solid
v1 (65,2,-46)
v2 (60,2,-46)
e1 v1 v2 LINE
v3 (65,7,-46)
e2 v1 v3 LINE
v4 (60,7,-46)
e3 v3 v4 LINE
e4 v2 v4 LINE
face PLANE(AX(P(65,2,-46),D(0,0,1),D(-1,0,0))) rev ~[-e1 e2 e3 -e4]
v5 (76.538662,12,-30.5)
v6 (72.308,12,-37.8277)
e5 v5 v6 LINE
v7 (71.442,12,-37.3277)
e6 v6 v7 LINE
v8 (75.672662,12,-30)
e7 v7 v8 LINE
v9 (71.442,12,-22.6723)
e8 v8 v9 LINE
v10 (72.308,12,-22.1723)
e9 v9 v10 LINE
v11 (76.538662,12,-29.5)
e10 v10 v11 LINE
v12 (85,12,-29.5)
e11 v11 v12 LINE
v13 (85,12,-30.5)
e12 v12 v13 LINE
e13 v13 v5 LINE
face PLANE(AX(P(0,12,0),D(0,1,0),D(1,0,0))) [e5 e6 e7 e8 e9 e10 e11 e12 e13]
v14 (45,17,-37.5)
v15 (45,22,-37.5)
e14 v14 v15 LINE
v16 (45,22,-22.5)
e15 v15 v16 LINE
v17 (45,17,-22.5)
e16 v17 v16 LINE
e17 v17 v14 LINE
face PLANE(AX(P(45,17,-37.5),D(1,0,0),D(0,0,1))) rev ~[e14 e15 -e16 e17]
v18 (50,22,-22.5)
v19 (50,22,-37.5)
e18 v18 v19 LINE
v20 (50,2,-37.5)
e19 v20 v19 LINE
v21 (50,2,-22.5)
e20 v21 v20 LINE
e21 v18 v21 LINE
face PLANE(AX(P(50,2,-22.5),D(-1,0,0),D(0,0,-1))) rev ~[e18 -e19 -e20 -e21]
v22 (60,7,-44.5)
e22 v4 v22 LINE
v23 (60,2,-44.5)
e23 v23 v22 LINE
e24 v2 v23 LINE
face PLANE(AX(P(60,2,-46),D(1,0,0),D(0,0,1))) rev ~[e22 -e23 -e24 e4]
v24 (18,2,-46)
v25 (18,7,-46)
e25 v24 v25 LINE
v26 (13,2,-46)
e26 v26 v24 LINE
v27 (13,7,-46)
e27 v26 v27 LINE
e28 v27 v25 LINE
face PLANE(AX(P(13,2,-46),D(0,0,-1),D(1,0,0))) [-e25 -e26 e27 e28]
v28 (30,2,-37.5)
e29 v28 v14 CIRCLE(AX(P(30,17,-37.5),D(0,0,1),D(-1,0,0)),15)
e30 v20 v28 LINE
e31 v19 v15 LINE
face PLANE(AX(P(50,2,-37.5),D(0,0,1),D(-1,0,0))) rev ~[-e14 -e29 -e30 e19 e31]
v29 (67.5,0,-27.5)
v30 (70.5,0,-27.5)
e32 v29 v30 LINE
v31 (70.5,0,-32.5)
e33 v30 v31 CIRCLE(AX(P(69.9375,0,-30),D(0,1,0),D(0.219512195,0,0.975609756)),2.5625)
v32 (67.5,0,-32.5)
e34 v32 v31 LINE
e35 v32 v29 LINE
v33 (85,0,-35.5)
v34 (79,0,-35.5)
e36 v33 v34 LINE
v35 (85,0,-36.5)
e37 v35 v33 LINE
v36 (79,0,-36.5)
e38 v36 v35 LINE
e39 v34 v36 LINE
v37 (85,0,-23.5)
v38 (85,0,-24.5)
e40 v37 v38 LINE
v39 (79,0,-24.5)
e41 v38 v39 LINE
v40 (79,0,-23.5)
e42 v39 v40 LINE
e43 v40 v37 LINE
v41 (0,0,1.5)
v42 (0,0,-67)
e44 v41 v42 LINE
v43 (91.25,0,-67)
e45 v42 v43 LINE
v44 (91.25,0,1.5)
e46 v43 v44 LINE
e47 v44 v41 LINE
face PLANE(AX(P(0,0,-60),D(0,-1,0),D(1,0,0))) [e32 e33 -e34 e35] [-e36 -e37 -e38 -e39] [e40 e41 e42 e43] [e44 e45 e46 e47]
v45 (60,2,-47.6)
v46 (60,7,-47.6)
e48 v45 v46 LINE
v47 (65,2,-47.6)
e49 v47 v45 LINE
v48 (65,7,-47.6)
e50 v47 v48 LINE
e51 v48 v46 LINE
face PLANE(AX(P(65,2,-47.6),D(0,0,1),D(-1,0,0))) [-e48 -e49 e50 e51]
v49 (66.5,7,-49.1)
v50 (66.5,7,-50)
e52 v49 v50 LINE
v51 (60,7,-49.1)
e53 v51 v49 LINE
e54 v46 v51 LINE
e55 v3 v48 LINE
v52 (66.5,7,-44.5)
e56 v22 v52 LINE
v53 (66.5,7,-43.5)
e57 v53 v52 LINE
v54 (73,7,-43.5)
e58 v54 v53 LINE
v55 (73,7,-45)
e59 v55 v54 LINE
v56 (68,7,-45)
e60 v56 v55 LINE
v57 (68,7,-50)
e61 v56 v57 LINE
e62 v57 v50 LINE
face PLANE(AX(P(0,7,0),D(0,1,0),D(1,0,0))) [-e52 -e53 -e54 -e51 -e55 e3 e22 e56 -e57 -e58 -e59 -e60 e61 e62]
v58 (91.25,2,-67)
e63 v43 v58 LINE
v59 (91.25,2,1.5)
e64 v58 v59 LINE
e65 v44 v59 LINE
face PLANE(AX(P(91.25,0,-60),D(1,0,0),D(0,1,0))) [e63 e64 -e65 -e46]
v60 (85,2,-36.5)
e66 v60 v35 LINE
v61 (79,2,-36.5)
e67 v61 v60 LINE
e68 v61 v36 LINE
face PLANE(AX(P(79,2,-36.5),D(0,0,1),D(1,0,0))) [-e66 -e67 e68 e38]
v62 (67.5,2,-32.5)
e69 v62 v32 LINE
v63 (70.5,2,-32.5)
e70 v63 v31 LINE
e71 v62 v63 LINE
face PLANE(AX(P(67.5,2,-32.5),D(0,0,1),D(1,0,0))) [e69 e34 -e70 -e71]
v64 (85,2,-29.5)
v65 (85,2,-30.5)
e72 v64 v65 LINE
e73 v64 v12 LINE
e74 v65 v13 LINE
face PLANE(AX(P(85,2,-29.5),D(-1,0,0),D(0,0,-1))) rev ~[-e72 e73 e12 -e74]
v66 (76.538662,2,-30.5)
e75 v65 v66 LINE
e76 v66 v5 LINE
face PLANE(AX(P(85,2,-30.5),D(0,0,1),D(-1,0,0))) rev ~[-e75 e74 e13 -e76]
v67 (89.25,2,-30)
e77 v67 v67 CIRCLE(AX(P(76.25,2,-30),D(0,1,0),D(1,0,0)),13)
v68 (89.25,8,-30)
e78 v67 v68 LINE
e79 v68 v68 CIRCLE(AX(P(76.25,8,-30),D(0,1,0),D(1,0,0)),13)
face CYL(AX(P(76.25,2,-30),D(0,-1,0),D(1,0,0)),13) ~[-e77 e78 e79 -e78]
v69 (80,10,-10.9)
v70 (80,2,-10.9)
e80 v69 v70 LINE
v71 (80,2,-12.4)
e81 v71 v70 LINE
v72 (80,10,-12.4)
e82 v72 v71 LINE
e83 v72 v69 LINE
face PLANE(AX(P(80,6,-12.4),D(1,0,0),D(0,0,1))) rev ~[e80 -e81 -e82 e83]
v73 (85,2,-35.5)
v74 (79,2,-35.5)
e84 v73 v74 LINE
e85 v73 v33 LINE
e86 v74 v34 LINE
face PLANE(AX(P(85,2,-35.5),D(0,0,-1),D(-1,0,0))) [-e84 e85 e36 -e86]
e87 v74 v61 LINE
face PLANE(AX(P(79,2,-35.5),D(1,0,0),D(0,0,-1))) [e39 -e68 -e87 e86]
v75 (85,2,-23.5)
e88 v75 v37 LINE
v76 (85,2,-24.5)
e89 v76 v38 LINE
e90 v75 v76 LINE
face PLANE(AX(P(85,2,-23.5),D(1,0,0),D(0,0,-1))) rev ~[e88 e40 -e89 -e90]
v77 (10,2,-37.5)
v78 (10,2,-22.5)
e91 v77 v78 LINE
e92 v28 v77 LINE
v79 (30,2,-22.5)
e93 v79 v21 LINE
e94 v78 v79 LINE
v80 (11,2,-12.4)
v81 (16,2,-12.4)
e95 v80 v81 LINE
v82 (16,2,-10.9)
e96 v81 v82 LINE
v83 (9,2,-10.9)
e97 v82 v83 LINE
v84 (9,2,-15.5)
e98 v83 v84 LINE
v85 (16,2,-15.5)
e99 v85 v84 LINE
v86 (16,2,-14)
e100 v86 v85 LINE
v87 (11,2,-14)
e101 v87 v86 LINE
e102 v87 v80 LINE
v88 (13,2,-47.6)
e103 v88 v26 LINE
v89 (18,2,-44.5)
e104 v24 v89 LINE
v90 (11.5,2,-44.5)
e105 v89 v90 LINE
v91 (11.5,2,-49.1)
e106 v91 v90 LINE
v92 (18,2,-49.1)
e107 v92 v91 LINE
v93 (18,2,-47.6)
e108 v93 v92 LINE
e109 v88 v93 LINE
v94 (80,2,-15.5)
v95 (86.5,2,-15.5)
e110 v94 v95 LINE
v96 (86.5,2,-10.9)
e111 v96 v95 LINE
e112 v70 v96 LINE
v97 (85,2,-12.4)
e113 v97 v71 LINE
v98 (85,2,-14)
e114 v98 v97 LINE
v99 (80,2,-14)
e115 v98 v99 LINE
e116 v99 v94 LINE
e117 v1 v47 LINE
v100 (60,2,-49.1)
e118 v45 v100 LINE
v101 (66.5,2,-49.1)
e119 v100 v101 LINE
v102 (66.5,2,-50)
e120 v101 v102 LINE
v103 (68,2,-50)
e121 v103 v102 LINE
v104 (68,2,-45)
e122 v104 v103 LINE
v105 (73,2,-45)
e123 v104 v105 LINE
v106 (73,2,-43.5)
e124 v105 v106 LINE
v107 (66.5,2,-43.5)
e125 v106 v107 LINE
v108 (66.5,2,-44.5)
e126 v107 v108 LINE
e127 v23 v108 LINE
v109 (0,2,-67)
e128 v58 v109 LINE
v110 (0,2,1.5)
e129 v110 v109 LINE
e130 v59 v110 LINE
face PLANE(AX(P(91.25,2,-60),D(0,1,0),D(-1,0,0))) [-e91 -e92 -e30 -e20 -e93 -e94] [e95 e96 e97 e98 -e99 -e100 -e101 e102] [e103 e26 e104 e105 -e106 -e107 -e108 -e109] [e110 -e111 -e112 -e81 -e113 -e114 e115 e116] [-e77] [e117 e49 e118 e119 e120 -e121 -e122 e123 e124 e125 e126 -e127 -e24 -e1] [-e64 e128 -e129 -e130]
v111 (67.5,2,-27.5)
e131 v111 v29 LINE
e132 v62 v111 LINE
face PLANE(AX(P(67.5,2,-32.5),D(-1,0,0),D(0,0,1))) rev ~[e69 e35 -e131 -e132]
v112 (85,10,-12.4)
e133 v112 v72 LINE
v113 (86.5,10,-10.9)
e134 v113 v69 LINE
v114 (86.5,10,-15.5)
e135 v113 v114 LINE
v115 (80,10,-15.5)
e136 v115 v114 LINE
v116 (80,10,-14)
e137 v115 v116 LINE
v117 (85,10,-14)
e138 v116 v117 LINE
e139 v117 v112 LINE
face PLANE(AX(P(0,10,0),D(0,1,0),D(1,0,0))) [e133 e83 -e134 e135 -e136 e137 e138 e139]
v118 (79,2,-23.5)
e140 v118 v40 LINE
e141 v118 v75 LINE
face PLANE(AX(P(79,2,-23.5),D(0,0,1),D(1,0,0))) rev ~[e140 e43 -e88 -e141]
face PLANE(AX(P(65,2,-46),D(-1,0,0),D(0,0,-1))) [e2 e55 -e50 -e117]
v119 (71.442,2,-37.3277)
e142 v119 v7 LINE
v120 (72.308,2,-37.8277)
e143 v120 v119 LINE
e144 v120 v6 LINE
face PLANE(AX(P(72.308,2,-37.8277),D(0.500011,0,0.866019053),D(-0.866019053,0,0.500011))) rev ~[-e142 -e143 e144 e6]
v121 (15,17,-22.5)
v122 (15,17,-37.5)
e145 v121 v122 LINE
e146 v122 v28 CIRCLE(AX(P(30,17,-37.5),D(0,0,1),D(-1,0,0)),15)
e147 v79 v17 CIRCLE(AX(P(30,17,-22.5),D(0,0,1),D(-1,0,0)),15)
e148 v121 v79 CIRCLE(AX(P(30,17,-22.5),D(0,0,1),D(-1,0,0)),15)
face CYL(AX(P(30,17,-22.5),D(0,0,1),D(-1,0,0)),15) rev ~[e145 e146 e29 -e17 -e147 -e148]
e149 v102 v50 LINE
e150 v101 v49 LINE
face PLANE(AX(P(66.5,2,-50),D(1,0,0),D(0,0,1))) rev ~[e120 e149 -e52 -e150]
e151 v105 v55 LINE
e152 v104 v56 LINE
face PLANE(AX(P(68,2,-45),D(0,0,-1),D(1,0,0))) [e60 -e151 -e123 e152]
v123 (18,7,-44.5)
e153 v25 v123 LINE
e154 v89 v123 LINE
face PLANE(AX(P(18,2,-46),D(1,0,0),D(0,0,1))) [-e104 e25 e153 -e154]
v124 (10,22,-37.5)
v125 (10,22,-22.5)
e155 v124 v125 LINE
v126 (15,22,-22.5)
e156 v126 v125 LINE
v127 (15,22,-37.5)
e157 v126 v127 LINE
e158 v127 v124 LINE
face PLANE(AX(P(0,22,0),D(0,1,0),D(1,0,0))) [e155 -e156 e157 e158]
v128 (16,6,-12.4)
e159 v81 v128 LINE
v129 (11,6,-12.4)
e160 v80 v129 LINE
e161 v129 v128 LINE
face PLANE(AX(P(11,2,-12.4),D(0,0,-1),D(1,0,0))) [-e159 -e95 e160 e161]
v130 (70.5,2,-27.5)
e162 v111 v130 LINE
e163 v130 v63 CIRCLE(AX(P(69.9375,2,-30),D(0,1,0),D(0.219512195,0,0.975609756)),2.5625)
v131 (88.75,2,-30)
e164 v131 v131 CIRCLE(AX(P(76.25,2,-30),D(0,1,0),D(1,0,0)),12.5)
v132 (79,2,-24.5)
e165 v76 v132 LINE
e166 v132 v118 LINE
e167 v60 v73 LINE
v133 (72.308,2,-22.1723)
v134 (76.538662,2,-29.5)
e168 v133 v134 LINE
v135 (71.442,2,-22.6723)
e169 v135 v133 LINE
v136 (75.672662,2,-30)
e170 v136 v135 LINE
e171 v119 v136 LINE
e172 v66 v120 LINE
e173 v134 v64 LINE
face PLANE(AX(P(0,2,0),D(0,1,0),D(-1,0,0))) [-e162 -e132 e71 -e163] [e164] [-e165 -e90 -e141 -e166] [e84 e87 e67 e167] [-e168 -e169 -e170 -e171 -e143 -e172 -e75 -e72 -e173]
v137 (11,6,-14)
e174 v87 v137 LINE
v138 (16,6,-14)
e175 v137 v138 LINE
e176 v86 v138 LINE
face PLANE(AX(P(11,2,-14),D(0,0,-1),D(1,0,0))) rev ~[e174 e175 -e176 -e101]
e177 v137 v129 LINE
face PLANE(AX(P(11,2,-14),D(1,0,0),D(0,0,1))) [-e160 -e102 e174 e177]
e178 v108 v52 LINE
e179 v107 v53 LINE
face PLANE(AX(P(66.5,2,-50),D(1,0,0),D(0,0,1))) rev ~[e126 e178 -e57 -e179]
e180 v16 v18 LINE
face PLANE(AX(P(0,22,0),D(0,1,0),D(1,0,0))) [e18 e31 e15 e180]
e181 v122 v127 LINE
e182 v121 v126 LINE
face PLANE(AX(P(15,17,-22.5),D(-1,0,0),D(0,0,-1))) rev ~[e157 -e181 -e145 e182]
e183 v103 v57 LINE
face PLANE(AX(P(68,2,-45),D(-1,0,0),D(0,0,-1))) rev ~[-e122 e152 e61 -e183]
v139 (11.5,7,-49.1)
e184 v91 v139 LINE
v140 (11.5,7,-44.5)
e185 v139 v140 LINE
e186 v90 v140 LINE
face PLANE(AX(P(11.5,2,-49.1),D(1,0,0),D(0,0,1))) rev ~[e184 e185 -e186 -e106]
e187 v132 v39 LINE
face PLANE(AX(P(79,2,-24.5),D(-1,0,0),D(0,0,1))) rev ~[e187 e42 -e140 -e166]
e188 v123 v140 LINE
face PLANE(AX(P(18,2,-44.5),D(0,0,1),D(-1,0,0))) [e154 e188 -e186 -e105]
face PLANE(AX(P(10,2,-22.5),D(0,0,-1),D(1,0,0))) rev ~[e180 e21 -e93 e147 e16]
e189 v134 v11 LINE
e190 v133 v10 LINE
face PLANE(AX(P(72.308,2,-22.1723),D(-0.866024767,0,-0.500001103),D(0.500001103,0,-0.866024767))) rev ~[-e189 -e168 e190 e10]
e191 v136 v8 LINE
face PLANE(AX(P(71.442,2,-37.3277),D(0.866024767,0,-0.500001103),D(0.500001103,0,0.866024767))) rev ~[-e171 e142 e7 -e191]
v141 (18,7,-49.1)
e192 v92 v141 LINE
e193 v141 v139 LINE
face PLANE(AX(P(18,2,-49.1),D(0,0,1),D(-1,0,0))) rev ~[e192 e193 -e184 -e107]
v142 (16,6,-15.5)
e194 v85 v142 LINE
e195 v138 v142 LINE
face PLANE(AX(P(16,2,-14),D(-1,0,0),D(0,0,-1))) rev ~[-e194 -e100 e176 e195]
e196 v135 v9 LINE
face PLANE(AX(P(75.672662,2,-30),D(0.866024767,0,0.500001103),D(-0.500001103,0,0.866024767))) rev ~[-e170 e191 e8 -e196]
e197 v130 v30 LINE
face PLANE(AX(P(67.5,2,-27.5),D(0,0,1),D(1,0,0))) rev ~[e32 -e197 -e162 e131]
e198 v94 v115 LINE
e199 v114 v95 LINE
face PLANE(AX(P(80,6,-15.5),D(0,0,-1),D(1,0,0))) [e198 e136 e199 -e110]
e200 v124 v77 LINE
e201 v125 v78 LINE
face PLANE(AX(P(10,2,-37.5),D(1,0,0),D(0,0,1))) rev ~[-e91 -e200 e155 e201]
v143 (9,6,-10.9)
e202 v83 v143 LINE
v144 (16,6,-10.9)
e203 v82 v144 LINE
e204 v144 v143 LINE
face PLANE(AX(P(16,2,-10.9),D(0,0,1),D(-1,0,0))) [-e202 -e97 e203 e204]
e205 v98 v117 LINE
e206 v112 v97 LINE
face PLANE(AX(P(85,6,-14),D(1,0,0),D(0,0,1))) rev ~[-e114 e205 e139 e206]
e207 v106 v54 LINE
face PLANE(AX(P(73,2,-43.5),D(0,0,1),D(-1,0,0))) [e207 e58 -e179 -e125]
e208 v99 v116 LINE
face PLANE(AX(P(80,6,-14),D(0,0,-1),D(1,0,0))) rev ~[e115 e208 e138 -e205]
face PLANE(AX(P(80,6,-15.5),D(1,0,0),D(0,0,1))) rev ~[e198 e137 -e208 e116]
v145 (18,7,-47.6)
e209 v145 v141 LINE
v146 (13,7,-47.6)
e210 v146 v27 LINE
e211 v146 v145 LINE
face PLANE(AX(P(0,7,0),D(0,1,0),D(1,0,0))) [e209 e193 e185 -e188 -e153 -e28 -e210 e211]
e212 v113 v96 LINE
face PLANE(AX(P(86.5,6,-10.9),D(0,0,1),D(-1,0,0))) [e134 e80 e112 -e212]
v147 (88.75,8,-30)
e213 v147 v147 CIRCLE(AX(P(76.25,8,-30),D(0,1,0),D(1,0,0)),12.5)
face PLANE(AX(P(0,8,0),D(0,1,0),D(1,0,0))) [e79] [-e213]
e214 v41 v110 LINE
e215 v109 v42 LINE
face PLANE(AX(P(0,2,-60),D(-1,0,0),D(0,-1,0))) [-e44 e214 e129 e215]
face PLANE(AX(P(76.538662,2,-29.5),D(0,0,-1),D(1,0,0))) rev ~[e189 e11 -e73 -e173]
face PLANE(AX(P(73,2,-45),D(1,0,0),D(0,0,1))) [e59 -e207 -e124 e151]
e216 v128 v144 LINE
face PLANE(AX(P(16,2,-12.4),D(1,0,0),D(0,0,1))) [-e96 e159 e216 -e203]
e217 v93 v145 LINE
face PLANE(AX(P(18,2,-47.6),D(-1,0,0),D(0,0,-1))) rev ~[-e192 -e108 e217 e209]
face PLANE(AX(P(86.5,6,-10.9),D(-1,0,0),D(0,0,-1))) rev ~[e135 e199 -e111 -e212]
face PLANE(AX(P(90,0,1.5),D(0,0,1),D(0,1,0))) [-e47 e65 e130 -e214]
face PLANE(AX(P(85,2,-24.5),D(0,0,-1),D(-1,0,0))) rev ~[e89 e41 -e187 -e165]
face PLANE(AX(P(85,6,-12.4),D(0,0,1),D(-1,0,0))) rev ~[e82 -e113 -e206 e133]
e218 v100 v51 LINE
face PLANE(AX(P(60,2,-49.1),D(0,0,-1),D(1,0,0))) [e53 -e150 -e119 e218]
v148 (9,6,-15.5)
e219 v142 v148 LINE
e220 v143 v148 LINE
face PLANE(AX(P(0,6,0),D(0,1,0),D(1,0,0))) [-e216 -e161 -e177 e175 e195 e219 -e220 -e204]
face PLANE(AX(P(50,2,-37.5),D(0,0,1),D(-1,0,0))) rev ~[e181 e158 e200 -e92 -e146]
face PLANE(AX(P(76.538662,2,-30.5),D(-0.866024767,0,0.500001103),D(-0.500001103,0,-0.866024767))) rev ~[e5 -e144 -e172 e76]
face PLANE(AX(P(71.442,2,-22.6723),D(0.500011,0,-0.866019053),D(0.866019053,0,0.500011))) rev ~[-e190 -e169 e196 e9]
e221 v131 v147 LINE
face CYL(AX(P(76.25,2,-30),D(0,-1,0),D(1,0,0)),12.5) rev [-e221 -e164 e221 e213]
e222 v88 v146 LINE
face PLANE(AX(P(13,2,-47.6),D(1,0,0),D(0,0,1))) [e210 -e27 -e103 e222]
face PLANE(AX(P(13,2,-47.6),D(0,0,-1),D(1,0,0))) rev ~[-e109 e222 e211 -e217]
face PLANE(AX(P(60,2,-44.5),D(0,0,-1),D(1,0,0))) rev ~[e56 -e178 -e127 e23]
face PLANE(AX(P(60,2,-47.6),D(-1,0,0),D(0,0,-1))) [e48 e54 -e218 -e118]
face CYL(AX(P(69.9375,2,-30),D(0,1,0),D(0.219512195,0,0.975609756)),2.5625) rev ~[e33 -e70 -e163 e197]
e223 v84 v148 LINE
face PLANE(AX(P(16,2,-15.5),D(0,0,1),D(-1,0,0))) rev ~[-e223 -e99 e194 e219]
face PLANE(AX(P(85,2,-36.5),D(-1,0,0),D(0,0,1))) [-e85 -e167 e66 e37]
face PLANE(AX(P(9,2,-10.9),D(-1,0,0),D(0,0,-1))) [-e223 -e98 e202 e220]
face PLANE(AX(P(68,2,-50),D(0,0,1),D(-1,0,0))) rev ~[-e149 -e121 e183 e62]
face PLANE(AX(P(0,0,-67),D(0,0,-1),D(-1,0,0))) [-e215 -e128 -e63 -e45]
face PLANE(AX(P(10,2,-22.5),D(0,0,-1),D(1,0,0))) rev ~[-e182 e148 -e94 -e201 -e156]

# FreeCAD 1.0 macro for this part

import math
import FreeCAD as App
import Part
import Sketcher
from FreeCAD import Vector


def add_polygon(sketch, points):
    """Adds a closed chain of lines whose ends are joined by coincident constraints."""
    first, n = sketch.GeometryCount, len(points)
    for a, b in zip(points, points[1:] + points[:1]):
        sketch.addGeometry(Part.LineSegment(App.Vector(*a, 0), App.Vector(*b, 0)), False)
    for i in range(n):
        sketch.addConstraint(Sketcher.Constraint("Coincident", first + i, 2, first + (i + 1) % n, 1))

doc = App.newDocument("Part")
body = doc.addObject("PartDesign::Body", "Body")

# Sketch on XZ plane
sketch1 = doc.addObject("Sketcher::SketchObject", "Sketch")
body.addObject(sketch1)
sketch1.AttachmentSupport = (doc.XZ_Plane, [""])
sketch1.MapMode = "FlatFace"
add_polygon(sketch1, [(0, -60), (0, 0), (90, 0), (90, -60)])  # lines 0-3
sketch1.addConstraint([
    Sketcher.Constraint("Vertical", 0),
    Sketcher.Constraint("Horizontal", 1),
    Sketcher.Constraint("Vertical", 2),
    Sketcher.Constraint("Horizontal", 3),
    Sketcher.Constraint("Coincident", 0, 2, -1, 1),
    Sketcher.Constraint("DistanceX", 1, 1, 1, 2, 90.0),
    Sketcher.Constraint("DistanceY", 0, 1, 0, 2, 60.0),
])
pad1 = doc.addObject("PartDesign::Pad", "Pad")
body.addObject(pad1)
pad1.Profile = sketch1
pad1.Length = 2
pad1.Reversed = True

# Sketch on XZ plane
sketch2 = doc.addObject("Sketcher::SketchObject", "Sketch001")
body.addObject(sketch2)
sketch2.AttachmentSupport = (doc.XZ_Plane, [""])
sketch2.MapMode = "FlatFace"
sketch2.AttachmentOffset = App.Placement(Vector(0, 0, -2), App.Rotation())
add_polygon(sketch2, [(85, -23.5), (85, -24.5), (79, -24.5), (79, -23.5)])  # lines 0-3
add_polygon(sketch2, [(79, -35.5), (85, -35.5), (85, -36.5), (79, -36.5)])  # lines 4-7
sketch2.addConstraint([
    Sketcher.Constraint("Vertical", 0),
    Sketcher.Constraint("Horizontal", 1),
    Sketcher.Constraint("Vertical", 2),
    Sketcher.Constraint("Horizontal", 3),
    Sketcher.Constraint("Horizontal", 4),
    Sketcher.Constraint("Vertical", 5),
    Sketcher.Constraint("Horizontal", 6),
    Sketcher.Constraint("Vertical", 7),
    Sketcher.Constraint("Vertical", 3, 2, 4, 2),
    Sketcher.Constraint("Vertical", 2, 2, 6, 2),
    Sketcher.Constraint("Equal", 2, 5),
    Sketcher.Constraint("DistanceX", 1, 2, 1, 1, 6.0),
    Sketcher.Constraint("DistanceY", 0, 2, 0, 1, 1.0),
    Sketcher.Constraint("DistanceX", -1, 1, 0, 2, 85.0),
    Sketcher.Constraint("DistanceY", 4, 2, 0, 2, 11.0),
    Sketcher.Constraint("DistanceY", 0, 2, -1, 1, 24.5),
])
pocket1 = doc.addObject("PartDesign::Pocket", "Pocket")
body.addObject(pocket1)
pocket1.Profile = sketch2
pocket1.Type = "ThroughAll"
pocket1.Reversed = True

# Sketch on XZ plane
sketch3 = doc.addObject("Sketcher::SketchObject", "Sketch002")
body.addObject(sketch3)
sketch3.AttachmentSupport = (doc.XZ_Plane, [""])
sketch3.MapMode = "FlatFace"
sketch3.AttachmentOffset = App.Placement(Vector(0, 0, -2), App.Rotation())
sketch3.addGeometry([
    Part.LineSegment(Vector(67.5, -27.5, 0), Vector(70.5, -27.5, 0)),
    Part.ArcOfCircle(Part.Circle(Vector(69.9, -30, 0), Vector(0, 0, 1), 2.6), math.radians(-77), math.radians(77)),
    Part.LineSegment(Vector(70.5, -32.5, 0), Vector(67.5, -32.5, 0)),
    Part.LineSegment(Vector(67.5, -32.5, 0), Vector(67.5, -27.5, 0)),
], False)
sketch3.addConstraint([
    Sketcher.Constraint("Coincident", 0, 2, 1, 2),
    Sketcher.Constraint("Coincident", 1, 1, 2, 1),
    Sketcher.Constraint("Coincident", 2, 2, 3, 1),
    Sketcher.Constraint("Coincident", 3, 2, 0, 1),
    Sketcher.Constraint("Horizontal", 0),
    Sketcher.Constraint("Horizontal", 2),
    Sketcher.Constraint("Vertical", 3),
    Sketcher.Constraint("Vertical", 0, 2, 1, 1),
    Sketcher.Constraint("DistanceX", 0, 1, 0, 2, 3.0),
    Sketcher.Constraint("DistanceY", 3, 1, 3, 2, 5.0),
    Sketcher.Constraint("DistanceY", 1, 3, -1, 1, 30.0),
    Sketcher.Constraint("DistanceX", -1, 1, 0, 2, 70.5),
    Sketcher.Constraint("Radius", 1, 2.5625),
])
pocket2 = doc.addObject("PartDesign::Pocket", "Pocket001")
body.addObject(pocket2)
pocket2.Profile = sketch3
pocket2.Type = "ThroughAll"
pocket2.Reversed = True

# Sketch on XZ plane
sketch4 = doc.addObject("Sketcher::SketchObject", "Sketch003")
body.addObject(sketch4)
sketch4.AttachmentSupport = (doc.XZ_Plane, [""])
sketch4.MapMode = "FlatFace"
sketch4.AttachmentOffset = App.Placement(Vector(0, 0, -2), App.Rotation())
add_polygon(sketch4, [(85, -29.5), (85, -30.5), (76.5, -30.5), (72.3, -37.8), (71.4, -37.3), (75.7, -30), (71.4, -22.7), (72.3, -22.2), (76.5, -29.5)])  # lines 0-8
sketch4.addConstraint([
    Sketcher.Constraint("Vertical", 0),
    Sketcher.Constraint("Horizontal", 1),
    Sketcher.Constraint("Horizontal", 8),
    Sketcher.Constraint("Perpendicular", 2, 3),
    Sketcher.Constraint("Perpendicular", 3, 4),
    Sketcher.Constraint("Perpendicular", 5, 6),
    Sketcher.Constraint("Perpendicular", 6, 7),
    Sketcher.Constraint("Vertical", 3, 2, 5, 2),
    Sketcher.Constraint("Vertical", 2, 2, 6, 2),
    Sketcher.Constraint("Vertical", 1, 2, 7, 2),
    Sketcher.Constraint("Equal", 2, 4),
    Sketcher.Constraint("Equal", 4, 5),
    Sketcher.Constraint("DistanceY", 0, 2, 0, 1, 1.0),
    Sketcher.Constraint("Distance", 3, 1.0),
    Sketcher.Constraint("DistanceX", -1, 1, 0, 2, 85.0),
    Sketcher.Constraint("DistanceY", 4, 2, -1, 1, 30.0),
    Sketcher.Constraint("DistanceX", 1, 2, 1, 1, 8.4613),
    Sketcher.Constraint("DistanceX", -1, 1, 2, 2, 72.308),
])
pad2 = doc.addObject("PartDesign::Pad", "Pad001")
body.addObject(pad2)
pad2.Profile = sketch4
pad2.Length = 10
pad2.Reversed = True

# Sketch on XZ plane
sketch5 = doc.addObject("Sketcher::SketchObject", "Sketch004")
body.addObject(sketch5)
sketch5.AttachmentSupport = (doc.XZ_Plane, [""])
sketch5.MapMode = "FlatFace"
sketch5.AttachmentOffset = App.Placement(Vector(0, 0, -2), App.Rotation())
sketch5.addGeometry([
    Part.Circle(Vector(76, -30, 0), Vector(0, 0, 1), 13),
    Part.Circle(Vector(76, -30, 0), Vector(0, 0, 1), 12),
], False)
sketch5.addConstraint([
    Sketcher.Constraint("Coincident", 1, 3, 0, 3),
    Sketcher.Constraint("Diameter", 0, 26.0),
    Sketcher.Constraint("Diameter", 1, 25.0),
    Sketcher.Constraint("DistanceY", 0, 3, -1, 1, 30.0),
    Sketcher.Constraint("DistanceX", -1, 1, 0, 3, 76.25),
])
pad3 = doc.addObject("PartDesign::Pad", "Pad002")
body.addObject(pad3)
pad3.Profile = sketch5
pad3.Length = 6
pad3.Reversed = True

# Sketch on XZ plane
sketch6 = doc.addObject("Sketcher::SketchObject", "Sketch005")
body.addObject(sketch6)
sketch6.AttachmentSupport = (doc.XZ_Plane, [""])
sketch6.MapMode = "FlatFace"
sketch6.AttachmentOffset = App.Placement(Vector(0, 0, -2), App.Rotation())
add_polygon(sketch6, [(80, -14), (85, -14), (85, -12.4), (80, -12.4), (80, -10.9), (86.5, -10.9), (86.5, -15.5), (80, -15.5)])  # lines 0-7
add_polygon(sketch6, [(11, -12.4), (11, -14), (16, -14), (16, -15.5), (9, -15.5), (9, -10.9), (16, -10.9), (16, -12.4)])  # lines 8-15
sketch6.addConstraint([
    Sketcher.Constraint("Horizontal", 0),
    Sketcher.Constraint("Vertical", 1),
    Sketcher.Constraint("Horizontal", 2),
    Sketcher.Constraint("Vertical", 3),
    Sketcher.Constraint("Horizontal", 4),
    Sketcher.Constraint("Vertical", 5),
    Sketcher.Constraint("Horizontal", 6),
    Sketcher.Constraint("Vertical", 7),
    Sketcher.Constraint("Vertical", 8),
    Sketcher.Constraint("Horizontal", 9),
    Sketcher.Constraint("Vertical", 10),
    Sketcher.Constraint("Horizontal", 11),
    Sketcher.Constraint("Vertical", 12),
    Sketcher.Constraint("Horizontal", 13),
    Sketcher.Constraint("Vertical", 14),
    Sketcher.Constraint("Horizontal", 15),
    Sketcher.Constraint("Horizontal", 7, 2, 8, 2),
    Sketcher.Constraint("Horizontal", 6, 2, 10, 2),
    Sketcher.Constraint("Horizontal", 4, 2, 12, 2),
    Sketcher.Constraint("Horizontal", 2, 2, 14, 2),
    Sketcher.Constraint("Vertical", 3, 2, 6, 2),
    Sketcher.Constraint("Vertical", 10, 2, 13, 2),
    Sketcher.Constraint("Equal", 2, 9),
    Sketcher.Constraint("Equal", 3, 7),
    Sketcher.Constraint("DistanceX", 0, 1, 0, 2, 5.0),
    Sketcher.Constraint("DistanceX", 11, 2, 11, 1, 7.0),
    Sketcher.Constraint("DistanceX", 4, 1, 4, 2, 6.5),
    Sketcher.Constraint("DistanceY", 1, 1, 1, 2, 1.6),
    Sketcher.Constraint("DistanceY", 3, 1, 3, 2, 1.5),
    Sketcher.Constraint("DistanceX", -1, 1, 9, 2, 16.0),
    Sketcher.Constraint("DistanceX", 8, 2, 0, 2, 74.0),
    Sketcher.Constraint("DistanceY", 0, 2, -1, 1, 14.0),
])
pad4 = doc.addObject("PartDesign::Pad", "Pad003")
body.addObject(pad4)
pad4.Profile = sketch6
pad4.Length = 4
pad4.Reversed = True

# Sketch on XZ plane
sketch7 = doc.addObject("Sketcher::SketchObject", "Sketch006")
body.addObject(sketch7)
sketch7.AttachmentSupport = (doc.XZ_Plane, [""])
sketch7.MapMode = "FlatFace"
sketch7.AttachmentOffset = App.Placement(Vector(0, 0, -6), App.Rotation())
add_polygon(sketch7, [(86.5, -15.5), (80, -15.5), (80, -14), (85, -14), (85, -12.4), (80, -12.4), (80, -10.9), (86.5, -10.9)])  # lines 0-7
sketch7.addConstraint([
    Sketcher.Constraint("Horizontal", 0),
    Sketcher.Constraint("Vertical", 1),
    Sketcher.Constraint("Horizontal", 2),
    Sketcher.Constraint("Vertical", 3),
    Sketcher.Constraint("Horizontal", 4),
    Sketcher.Constraint("Vertical", 5),
    Sketcher.Constraint("Horizontal", 6),
    Sketcher.Constraint("Vertical", 7),
    Sketcher.Constraint("Vertical", 1, 2, 4, 2),
    Sketcher.Constraint("Equal", 1, 5),
    Sketcher.Constraint("DistanceX", 2, 1, 2, 2, 5.0),
    Sketcher.Constraint("DistanceX", 0, 2, 0, 1, 6.5),
    Sketcher.Constraint("DistanceY", 1, 1, 1, 2, 1.5),
    Sketcher.Constraint("DistanceY", 3, 1, 3, 2, 1.6),
    Sketcher.Constraint("DistanceX", -1, 1, 0, 2, 80.0),
    Sketcher.Constraint("DistanceY", 1, 2, -1, 1, 14.0),
])
pad5 = doc.addObject("PartDesign::Pad", "Pad004")
body.addObject(pad5)
pad5.Profile = sketch7
pad5.Length = 4
pad5.Reversed = True

# Sketch on XZ plane
sketch8 = doc.addObject("Sketcher::SketchObject", "Sketch007")
body.addObject(sketch8)
sketch8.AttachmentSupport = (doc.XZ_Plane, [""])
sketch8.MapMode = "FlatFace"
sketch8.AttachmentOffset = App.Placement(Vector(0, 0, -2), App.Rotation())
add_polygon(sketch8, [(50, -22), (50, -38), (10, -38), (10, -22)])  # lines 0-3
sketch8.addConstraint([
    Sketcher.Constraint("Vertical", 0),
    Sketcher.Constraint("Horizontal", 1),
    Sketcher.Constraint("Vertical", 2),
    Sketcher.Constraint("Horizontal", 3),
    Sketcher.Constraint("DistanceX", 1, 2, 1, 1, 40.0),
    Sketcher.Constraint("DistanceY", 0, 2, 0, 1, 15.0),
    Sketcher.Constraint("DistanceX", -1, 1, 0, 2, 50.0),
    Sketcher.Constraint("DistanceY", 0, 2, -1, 1, 37.5),
])
pad6 = doc.addObject("PartDesign::Pad", "Pad005")
body.addObject(pad6)
pad6.Profile = sketch8
pad6.Length = 15
pad6.Reversed = True

# Sketch on XY plane
sketch9 = doc.addObject("Sketcher::SketchObject", "Sketch008")
body.addObject(sketch9)
sketch9.AttachmentSupport = (doc.XY_Plane, [""])
sketch9.MapMode = "FlatFace"
sketch9.AttachmentOffset = App.Placement(Vector(0, 0, -22.5), App.Rotation())
sketch9.addGeometry([
    Part.LineSegment(Vector(45, 17, 0), Vector(15, 17, 0)),
    Part.ArcOfCircle(Part.Circle(Vector(30, 17, 0), Vector(0, 0, 1), 15), math.radians(180), math.radians(360)),
], False)
sketch9.addConstraint([
    Sketcher.Constraint("Coincident", 0, 1, 1, 2),
    Sketcher.Constraint("Coincident", 1, 1, 0, 2),
    Sketcher.Constraint("Horizontal", 0),
    Sketcher.Constraint("Horizontal", 1, 3, 0, 1),
    Sketcher.Constraint("Radius", 1, 15.0),
    Sketcher.Constraint("DistanceX", -1, 1, 1, 3, 30.0),
    Sketcher.Constraint("DistanceY", -1, 1, 1, 3, 17.0),
])
pocket3 = doc.addObject("PartDesign::Pocket", "Pocket002")
body.addObject(pocket3)
pocket3.Profile = sketch9
pocket3.Length = 15

# Sketch on XZ plane
sketch10 = doc.addObject("Sketcher::SketchObject", "Sketch009")
body.addObject(sketch10)
sketch10.AttachmentSupport = (doc.XZ_Plane, [""])
sketch10.MapMode = "FlatFace"
sketch10.AttachmentOffset = App.Placement(Vector(0, 0, -2), App.Rotation())
add_polygon(sketch10, [(73, -45), (68, -45), (68, -50), (66.5, -50), (66.5, -43.5), (73, -43.5)])  # lines 0-5
sketch10.addConstraint([
    Sketcher.Constraint("Horizontal", 0),
    Sketcher.Constraint("Vertical", 1),
    Sketcher.Constraint("Horizontal", 2),
    Sketcher.Constraint("Vertical", 3),
    Sketcher.Constraint("Horizontal", 4),
    Sketcher.Constraint("Vertical", 5),
    Sketcher.Constraint("Equal", 0, 1),
    Sketcher.Constraint("Equal", 4, 3),
    Sketcher.Constraint("DistanceX", 0, 2, 0, 1, 5.0),
    Sketcher.Constraint("DistanceX", 2, 2, 2, 1, 1.5),
    Sketcher.Constraint("DistanceX", -1, 1, 0, 2, 68.0),
    Sketcher.Constraint("DistanceY", 0, 2, -1, 1, 45.0),
])
pad7 = doc.addObject("PartDesign::Pad", "Pad006")
body.addObject(pad7)
pad7.Profile = sketch10
pad7.Length = 5
pad7.Reversed = True

# Sketch on XZ plane
sketch11 = doc.addObject("Sketcher::SketchObject", "Sketch010")
body.addObject(sketch11)
sketch11.AttachmentSupport = (doc.XZ_Plane, [""])
sketch11.MapMode = "FlatFace"
sketch11.AttachmentOffset = App.Placement(Vector(0, 0, -17), App.Rotation())
add_polygon(sketch11, [(50, -22), (50, -38), (45, -38), (45, -22)])  # lines 0-3
add_polygon(sketch11, [(10, -22), (15, -22), (15, -38), (10, -38)])  # lines 4-7
sketch11.addConstraint([
    Sketcher.Constraint("Vertical", 0),
    Sketcher.Constraint("Horizontal", 1),
    Sketcher.Constraint("Vertical", 2),
    Sketcher.Constraint("Horizontal", 3),
    Sketcher.Constraint("Horizontal", 4),
    Sketcher.Constraint("Vertical", 5),
    Sketcher.Constraint("Horizontal", 6),
    Sketcher.Constraint("Vertical", 7),
    Sketcher.Constraint("Horizontal", 3, 2, 4, 2),
    Sketcher.Constraint("Horizontal", 1, 2, 5, 2),
    Sketcher.Constraint("Equal", 3, 4),
    Sketcher.Constraint("DistanceX", 1, 2, 1, 1, 5.0),
    Sketcher.Constraint("DistanceY", 0, 2, 0, 1, 15.0),
    Sketcher.Constraint("DistanceX", -1, 1, 0, 2, 50.0),
    Sketcher.Constraint("DistanceX", -1, 1, 4, 2, 15.0),
    Sketcher.Constraint("DistanceY", 0, 2, -1, 1, 37.5),
])
pad8 = doc.addObject("PartDesign::Pad", "Pad007")
body.addObject(pad8)
pad8.Profile = sketch11
pad8.Length = 5
pad8.Reversed = True

# Sketch on XZ plane
sketch12 = doc.addObject("Sketcher::SketchObject", "Sketch011")
body.addObject(sketch12)
sketch12.AttachmentSupport = (doc.XZ_Plane, [""])
sketch12.MapMode = "FlatFace"
sketch12.AttachmentOffset = App.Placement(Vector(0, 0, -2), App.Rotation())
add_polygon(sketch12, [(65, -47.6), (65, -46), (60, -46), (60, -44.5), (66.5, -44.5), (66.5, -49.1), (60, -49.1), (60, -47.6)])  # lines 0-7
add_polygon(sketch12, [(13, -46), (13, -47.6), (18, -47.6), (18, -49.1), (11.5, -49.1), (11.5, -44.5), (18, -44.5), (18, -46)])  # lines 8-15
sketch12.addConstraint([
    Sketcher.Constraint("Vertical", 0),
    Sketcher.Constraint("Horizontal", 1),
    Sketcher.Constraint("Vertical", 2),
    Sketcher.Constraint("Horizontal", 3),
    Sketcher.Constraint("Vertical", 4),
    Sketcher.Constraint("Horizontal", 5),
    Sketcher.Constraint("Vertical", 6),
    Sketcher.Constraint("Horizontal", 7),
    Sketcher.Constraint("Vertical", 8),
    Sketcher.Constraint("Horizontal", 9),
    Sketcher.Constraint("Vertical", 10),
    Sketcher.Constraint("Horizontal", 11),
    Sketcher.Constraint("Vertical", 12),
    Sketcher.Constraint("Horizontal", 13),
    Sketcher.Constraint("Vertical", 14),
    Sketcher.Constraint("Horizontal", 15),
    Sketcher.Constraint("Horizontal", 7, 2, 8, 2),
    Sketcher.Constraint("Horizontal", 5, 2, 10, 2),
    Sketcher.Constraint("Horizontal", 3, 2, 12, 2),
    Sketcher.Constraint("Horizontal", 1, 2, 14, 2),
    Sketcher.Constraint("Vertical", 2, 2, 5, 2),
    Sketcher.Constraint("Vertical", 10, 2, 13, 2),
    Sketcher.Constraint("Equal", 7, 9),
    Sketcher.Constraint("Equal", 5, 11),
    Sketcher.Constraint("Equal", 2, 6),
    Sketcher.Constraint("DistanceX", 1, 2, 1, 1, 5.0),
    Sketcher.Constraint("DistanceX", 3, 1, 3, 2, 6.5),
    Sketcher.Constraint("DistanceY", 0, 1, 0, 2, 1.6),
    Sketcher.Constraint("DistanceY", 2, 1, 2, 2, 1.5),
    Sketcher.Constraint("DistanceX", 8, 2, 7, 2, 52.0),
    Sketcher.Constraint("DistanceX", -1, 1, 0, 2, 65.0),
    Sketcher.Constraint("DistanceY", 0, 2, -1, 1, 46.0),
])
pad9 = doc.addObject("PartDesign::Pad", "Pad008")
body.addObject(pad9)
pad9.Profile = sketch12
pad9.Length = 5
pad9.Reversed = True

# Sketch on XY plane
sketch13 = doc.addObject("Sketcher::SketchObject", "Sketch012")
body.addObject(sketch13)
sketch13.AttachmentSupport = (doc.XY_Plane, [""])
sketch13.MapMode = "FlatFace"
add_polygon(sketch13, [(90, 0), (90, 2), (0, 2), (0, 0)])  # lines 0-3
sketch13.addConstraint([
    Sketcher.Constraint("Vertical", 0),
    Sketcher.Constraint("Horizontal", 1),
    Sketcher.Constraint("Vertical", 2),
    Sketcher.Constraint("Horizontal", 3),
    Sketcher.Constraint("Coincident", 2, 2, -1, 1),
    Sketcher.Constraint("DistanceX", 1, 2, 1, 1, 90.0),
    Sketcher.Constraint("DistanceY", 0, 1, 0, 2, 2.0),
])
pad10 = doc.addObject("PartDesign::Pad", "Pad009")
body.addObject(pad10)
pad10.Profile = sketch13
pad10.Length = 1.5

# Sketch on YZ plane
sketch14 = doc.addObject("Sketcher::SketchObject", "Sketch013")
body.addObject(sketch14)
sketch14.AttachmentSupport = (doc.YZ_Plane, [""])
sketch14.MapMode = "FlatFace"
sketch14.AttachmentOffset = App.Placement(Vector(0, 0, 90), App.Rotation())
add_polygon(sketch14, [(0, 1.5), (0, -60), (2, -60), (2, 1.5)])  # lines 0-3
sketch14.addConstraint([
    Sketcher.Constraint("Vertical", 0),
    Sketcher.Constraint("Horizontal", 1),
    Sketcher.Constraint("Vertical", 2),
    Sketcher.Constraint("Horizontal", 3),
    Sketcher.Constraint("PointOnObject", 0, 2, -2),
    Sketcher.Constraint("DistanceX", 1, 1, 1, 2, 2.0),
    Sketcher.Constraint("DistanceY", 0, 2, 0, 1, 61.5),
    Sketcher.Constraint("DistanceY", 0, 2, -1, 1, 60.0),
])
pad11 = doc.addObject("PartDesign::Pad", "Pad010")
body.addObject(pad11)
pad11.Profile = sketch14
pad11.Length = 1.25

# Sketch on XY plane
sketch15 = doc.addObject("Sketcher::SketchObject", "Sketch014")
body.addObject(sketch15)
sketch15.AttachmentSupport = (doc.XY_Plane, [""])
sketch15.MapMode = "FlatFace"
sketch15.AttachmentOffset = App.Placement(Vector(0, 0, -60), App.Rotation())
add_polygon(sketch15, [(91.2, 0), (0, 0), (0, 2), (91.2, 2)])  # lines 0-3
sketch15.addConstraint([
    Sketcher.Constraint("Horizontal", 0),
    Sketcher.Constraint("Vertical", 1),
    Sketcher.Constraint("Horizontal", 2),
    Sketcher.Constraint("Vertical", 3),
    Sketcher.Constraint("Coincident", 0, 2, -1, 1),
    Sketcher.Constraint("DistanceY", 1, 1, 1, 2, 2.0),
    Sketcher.Constraint("DistanceX", 0, 2, 0, 1, 91.25),
])
pad12 = doc.addObject("PartDesign::Pad", "Pad011")
body.addObject(pad12)
pad12.Profile = sketch15
pad12.Length = 7
pad12.Reversed = True

doc.recompute()
